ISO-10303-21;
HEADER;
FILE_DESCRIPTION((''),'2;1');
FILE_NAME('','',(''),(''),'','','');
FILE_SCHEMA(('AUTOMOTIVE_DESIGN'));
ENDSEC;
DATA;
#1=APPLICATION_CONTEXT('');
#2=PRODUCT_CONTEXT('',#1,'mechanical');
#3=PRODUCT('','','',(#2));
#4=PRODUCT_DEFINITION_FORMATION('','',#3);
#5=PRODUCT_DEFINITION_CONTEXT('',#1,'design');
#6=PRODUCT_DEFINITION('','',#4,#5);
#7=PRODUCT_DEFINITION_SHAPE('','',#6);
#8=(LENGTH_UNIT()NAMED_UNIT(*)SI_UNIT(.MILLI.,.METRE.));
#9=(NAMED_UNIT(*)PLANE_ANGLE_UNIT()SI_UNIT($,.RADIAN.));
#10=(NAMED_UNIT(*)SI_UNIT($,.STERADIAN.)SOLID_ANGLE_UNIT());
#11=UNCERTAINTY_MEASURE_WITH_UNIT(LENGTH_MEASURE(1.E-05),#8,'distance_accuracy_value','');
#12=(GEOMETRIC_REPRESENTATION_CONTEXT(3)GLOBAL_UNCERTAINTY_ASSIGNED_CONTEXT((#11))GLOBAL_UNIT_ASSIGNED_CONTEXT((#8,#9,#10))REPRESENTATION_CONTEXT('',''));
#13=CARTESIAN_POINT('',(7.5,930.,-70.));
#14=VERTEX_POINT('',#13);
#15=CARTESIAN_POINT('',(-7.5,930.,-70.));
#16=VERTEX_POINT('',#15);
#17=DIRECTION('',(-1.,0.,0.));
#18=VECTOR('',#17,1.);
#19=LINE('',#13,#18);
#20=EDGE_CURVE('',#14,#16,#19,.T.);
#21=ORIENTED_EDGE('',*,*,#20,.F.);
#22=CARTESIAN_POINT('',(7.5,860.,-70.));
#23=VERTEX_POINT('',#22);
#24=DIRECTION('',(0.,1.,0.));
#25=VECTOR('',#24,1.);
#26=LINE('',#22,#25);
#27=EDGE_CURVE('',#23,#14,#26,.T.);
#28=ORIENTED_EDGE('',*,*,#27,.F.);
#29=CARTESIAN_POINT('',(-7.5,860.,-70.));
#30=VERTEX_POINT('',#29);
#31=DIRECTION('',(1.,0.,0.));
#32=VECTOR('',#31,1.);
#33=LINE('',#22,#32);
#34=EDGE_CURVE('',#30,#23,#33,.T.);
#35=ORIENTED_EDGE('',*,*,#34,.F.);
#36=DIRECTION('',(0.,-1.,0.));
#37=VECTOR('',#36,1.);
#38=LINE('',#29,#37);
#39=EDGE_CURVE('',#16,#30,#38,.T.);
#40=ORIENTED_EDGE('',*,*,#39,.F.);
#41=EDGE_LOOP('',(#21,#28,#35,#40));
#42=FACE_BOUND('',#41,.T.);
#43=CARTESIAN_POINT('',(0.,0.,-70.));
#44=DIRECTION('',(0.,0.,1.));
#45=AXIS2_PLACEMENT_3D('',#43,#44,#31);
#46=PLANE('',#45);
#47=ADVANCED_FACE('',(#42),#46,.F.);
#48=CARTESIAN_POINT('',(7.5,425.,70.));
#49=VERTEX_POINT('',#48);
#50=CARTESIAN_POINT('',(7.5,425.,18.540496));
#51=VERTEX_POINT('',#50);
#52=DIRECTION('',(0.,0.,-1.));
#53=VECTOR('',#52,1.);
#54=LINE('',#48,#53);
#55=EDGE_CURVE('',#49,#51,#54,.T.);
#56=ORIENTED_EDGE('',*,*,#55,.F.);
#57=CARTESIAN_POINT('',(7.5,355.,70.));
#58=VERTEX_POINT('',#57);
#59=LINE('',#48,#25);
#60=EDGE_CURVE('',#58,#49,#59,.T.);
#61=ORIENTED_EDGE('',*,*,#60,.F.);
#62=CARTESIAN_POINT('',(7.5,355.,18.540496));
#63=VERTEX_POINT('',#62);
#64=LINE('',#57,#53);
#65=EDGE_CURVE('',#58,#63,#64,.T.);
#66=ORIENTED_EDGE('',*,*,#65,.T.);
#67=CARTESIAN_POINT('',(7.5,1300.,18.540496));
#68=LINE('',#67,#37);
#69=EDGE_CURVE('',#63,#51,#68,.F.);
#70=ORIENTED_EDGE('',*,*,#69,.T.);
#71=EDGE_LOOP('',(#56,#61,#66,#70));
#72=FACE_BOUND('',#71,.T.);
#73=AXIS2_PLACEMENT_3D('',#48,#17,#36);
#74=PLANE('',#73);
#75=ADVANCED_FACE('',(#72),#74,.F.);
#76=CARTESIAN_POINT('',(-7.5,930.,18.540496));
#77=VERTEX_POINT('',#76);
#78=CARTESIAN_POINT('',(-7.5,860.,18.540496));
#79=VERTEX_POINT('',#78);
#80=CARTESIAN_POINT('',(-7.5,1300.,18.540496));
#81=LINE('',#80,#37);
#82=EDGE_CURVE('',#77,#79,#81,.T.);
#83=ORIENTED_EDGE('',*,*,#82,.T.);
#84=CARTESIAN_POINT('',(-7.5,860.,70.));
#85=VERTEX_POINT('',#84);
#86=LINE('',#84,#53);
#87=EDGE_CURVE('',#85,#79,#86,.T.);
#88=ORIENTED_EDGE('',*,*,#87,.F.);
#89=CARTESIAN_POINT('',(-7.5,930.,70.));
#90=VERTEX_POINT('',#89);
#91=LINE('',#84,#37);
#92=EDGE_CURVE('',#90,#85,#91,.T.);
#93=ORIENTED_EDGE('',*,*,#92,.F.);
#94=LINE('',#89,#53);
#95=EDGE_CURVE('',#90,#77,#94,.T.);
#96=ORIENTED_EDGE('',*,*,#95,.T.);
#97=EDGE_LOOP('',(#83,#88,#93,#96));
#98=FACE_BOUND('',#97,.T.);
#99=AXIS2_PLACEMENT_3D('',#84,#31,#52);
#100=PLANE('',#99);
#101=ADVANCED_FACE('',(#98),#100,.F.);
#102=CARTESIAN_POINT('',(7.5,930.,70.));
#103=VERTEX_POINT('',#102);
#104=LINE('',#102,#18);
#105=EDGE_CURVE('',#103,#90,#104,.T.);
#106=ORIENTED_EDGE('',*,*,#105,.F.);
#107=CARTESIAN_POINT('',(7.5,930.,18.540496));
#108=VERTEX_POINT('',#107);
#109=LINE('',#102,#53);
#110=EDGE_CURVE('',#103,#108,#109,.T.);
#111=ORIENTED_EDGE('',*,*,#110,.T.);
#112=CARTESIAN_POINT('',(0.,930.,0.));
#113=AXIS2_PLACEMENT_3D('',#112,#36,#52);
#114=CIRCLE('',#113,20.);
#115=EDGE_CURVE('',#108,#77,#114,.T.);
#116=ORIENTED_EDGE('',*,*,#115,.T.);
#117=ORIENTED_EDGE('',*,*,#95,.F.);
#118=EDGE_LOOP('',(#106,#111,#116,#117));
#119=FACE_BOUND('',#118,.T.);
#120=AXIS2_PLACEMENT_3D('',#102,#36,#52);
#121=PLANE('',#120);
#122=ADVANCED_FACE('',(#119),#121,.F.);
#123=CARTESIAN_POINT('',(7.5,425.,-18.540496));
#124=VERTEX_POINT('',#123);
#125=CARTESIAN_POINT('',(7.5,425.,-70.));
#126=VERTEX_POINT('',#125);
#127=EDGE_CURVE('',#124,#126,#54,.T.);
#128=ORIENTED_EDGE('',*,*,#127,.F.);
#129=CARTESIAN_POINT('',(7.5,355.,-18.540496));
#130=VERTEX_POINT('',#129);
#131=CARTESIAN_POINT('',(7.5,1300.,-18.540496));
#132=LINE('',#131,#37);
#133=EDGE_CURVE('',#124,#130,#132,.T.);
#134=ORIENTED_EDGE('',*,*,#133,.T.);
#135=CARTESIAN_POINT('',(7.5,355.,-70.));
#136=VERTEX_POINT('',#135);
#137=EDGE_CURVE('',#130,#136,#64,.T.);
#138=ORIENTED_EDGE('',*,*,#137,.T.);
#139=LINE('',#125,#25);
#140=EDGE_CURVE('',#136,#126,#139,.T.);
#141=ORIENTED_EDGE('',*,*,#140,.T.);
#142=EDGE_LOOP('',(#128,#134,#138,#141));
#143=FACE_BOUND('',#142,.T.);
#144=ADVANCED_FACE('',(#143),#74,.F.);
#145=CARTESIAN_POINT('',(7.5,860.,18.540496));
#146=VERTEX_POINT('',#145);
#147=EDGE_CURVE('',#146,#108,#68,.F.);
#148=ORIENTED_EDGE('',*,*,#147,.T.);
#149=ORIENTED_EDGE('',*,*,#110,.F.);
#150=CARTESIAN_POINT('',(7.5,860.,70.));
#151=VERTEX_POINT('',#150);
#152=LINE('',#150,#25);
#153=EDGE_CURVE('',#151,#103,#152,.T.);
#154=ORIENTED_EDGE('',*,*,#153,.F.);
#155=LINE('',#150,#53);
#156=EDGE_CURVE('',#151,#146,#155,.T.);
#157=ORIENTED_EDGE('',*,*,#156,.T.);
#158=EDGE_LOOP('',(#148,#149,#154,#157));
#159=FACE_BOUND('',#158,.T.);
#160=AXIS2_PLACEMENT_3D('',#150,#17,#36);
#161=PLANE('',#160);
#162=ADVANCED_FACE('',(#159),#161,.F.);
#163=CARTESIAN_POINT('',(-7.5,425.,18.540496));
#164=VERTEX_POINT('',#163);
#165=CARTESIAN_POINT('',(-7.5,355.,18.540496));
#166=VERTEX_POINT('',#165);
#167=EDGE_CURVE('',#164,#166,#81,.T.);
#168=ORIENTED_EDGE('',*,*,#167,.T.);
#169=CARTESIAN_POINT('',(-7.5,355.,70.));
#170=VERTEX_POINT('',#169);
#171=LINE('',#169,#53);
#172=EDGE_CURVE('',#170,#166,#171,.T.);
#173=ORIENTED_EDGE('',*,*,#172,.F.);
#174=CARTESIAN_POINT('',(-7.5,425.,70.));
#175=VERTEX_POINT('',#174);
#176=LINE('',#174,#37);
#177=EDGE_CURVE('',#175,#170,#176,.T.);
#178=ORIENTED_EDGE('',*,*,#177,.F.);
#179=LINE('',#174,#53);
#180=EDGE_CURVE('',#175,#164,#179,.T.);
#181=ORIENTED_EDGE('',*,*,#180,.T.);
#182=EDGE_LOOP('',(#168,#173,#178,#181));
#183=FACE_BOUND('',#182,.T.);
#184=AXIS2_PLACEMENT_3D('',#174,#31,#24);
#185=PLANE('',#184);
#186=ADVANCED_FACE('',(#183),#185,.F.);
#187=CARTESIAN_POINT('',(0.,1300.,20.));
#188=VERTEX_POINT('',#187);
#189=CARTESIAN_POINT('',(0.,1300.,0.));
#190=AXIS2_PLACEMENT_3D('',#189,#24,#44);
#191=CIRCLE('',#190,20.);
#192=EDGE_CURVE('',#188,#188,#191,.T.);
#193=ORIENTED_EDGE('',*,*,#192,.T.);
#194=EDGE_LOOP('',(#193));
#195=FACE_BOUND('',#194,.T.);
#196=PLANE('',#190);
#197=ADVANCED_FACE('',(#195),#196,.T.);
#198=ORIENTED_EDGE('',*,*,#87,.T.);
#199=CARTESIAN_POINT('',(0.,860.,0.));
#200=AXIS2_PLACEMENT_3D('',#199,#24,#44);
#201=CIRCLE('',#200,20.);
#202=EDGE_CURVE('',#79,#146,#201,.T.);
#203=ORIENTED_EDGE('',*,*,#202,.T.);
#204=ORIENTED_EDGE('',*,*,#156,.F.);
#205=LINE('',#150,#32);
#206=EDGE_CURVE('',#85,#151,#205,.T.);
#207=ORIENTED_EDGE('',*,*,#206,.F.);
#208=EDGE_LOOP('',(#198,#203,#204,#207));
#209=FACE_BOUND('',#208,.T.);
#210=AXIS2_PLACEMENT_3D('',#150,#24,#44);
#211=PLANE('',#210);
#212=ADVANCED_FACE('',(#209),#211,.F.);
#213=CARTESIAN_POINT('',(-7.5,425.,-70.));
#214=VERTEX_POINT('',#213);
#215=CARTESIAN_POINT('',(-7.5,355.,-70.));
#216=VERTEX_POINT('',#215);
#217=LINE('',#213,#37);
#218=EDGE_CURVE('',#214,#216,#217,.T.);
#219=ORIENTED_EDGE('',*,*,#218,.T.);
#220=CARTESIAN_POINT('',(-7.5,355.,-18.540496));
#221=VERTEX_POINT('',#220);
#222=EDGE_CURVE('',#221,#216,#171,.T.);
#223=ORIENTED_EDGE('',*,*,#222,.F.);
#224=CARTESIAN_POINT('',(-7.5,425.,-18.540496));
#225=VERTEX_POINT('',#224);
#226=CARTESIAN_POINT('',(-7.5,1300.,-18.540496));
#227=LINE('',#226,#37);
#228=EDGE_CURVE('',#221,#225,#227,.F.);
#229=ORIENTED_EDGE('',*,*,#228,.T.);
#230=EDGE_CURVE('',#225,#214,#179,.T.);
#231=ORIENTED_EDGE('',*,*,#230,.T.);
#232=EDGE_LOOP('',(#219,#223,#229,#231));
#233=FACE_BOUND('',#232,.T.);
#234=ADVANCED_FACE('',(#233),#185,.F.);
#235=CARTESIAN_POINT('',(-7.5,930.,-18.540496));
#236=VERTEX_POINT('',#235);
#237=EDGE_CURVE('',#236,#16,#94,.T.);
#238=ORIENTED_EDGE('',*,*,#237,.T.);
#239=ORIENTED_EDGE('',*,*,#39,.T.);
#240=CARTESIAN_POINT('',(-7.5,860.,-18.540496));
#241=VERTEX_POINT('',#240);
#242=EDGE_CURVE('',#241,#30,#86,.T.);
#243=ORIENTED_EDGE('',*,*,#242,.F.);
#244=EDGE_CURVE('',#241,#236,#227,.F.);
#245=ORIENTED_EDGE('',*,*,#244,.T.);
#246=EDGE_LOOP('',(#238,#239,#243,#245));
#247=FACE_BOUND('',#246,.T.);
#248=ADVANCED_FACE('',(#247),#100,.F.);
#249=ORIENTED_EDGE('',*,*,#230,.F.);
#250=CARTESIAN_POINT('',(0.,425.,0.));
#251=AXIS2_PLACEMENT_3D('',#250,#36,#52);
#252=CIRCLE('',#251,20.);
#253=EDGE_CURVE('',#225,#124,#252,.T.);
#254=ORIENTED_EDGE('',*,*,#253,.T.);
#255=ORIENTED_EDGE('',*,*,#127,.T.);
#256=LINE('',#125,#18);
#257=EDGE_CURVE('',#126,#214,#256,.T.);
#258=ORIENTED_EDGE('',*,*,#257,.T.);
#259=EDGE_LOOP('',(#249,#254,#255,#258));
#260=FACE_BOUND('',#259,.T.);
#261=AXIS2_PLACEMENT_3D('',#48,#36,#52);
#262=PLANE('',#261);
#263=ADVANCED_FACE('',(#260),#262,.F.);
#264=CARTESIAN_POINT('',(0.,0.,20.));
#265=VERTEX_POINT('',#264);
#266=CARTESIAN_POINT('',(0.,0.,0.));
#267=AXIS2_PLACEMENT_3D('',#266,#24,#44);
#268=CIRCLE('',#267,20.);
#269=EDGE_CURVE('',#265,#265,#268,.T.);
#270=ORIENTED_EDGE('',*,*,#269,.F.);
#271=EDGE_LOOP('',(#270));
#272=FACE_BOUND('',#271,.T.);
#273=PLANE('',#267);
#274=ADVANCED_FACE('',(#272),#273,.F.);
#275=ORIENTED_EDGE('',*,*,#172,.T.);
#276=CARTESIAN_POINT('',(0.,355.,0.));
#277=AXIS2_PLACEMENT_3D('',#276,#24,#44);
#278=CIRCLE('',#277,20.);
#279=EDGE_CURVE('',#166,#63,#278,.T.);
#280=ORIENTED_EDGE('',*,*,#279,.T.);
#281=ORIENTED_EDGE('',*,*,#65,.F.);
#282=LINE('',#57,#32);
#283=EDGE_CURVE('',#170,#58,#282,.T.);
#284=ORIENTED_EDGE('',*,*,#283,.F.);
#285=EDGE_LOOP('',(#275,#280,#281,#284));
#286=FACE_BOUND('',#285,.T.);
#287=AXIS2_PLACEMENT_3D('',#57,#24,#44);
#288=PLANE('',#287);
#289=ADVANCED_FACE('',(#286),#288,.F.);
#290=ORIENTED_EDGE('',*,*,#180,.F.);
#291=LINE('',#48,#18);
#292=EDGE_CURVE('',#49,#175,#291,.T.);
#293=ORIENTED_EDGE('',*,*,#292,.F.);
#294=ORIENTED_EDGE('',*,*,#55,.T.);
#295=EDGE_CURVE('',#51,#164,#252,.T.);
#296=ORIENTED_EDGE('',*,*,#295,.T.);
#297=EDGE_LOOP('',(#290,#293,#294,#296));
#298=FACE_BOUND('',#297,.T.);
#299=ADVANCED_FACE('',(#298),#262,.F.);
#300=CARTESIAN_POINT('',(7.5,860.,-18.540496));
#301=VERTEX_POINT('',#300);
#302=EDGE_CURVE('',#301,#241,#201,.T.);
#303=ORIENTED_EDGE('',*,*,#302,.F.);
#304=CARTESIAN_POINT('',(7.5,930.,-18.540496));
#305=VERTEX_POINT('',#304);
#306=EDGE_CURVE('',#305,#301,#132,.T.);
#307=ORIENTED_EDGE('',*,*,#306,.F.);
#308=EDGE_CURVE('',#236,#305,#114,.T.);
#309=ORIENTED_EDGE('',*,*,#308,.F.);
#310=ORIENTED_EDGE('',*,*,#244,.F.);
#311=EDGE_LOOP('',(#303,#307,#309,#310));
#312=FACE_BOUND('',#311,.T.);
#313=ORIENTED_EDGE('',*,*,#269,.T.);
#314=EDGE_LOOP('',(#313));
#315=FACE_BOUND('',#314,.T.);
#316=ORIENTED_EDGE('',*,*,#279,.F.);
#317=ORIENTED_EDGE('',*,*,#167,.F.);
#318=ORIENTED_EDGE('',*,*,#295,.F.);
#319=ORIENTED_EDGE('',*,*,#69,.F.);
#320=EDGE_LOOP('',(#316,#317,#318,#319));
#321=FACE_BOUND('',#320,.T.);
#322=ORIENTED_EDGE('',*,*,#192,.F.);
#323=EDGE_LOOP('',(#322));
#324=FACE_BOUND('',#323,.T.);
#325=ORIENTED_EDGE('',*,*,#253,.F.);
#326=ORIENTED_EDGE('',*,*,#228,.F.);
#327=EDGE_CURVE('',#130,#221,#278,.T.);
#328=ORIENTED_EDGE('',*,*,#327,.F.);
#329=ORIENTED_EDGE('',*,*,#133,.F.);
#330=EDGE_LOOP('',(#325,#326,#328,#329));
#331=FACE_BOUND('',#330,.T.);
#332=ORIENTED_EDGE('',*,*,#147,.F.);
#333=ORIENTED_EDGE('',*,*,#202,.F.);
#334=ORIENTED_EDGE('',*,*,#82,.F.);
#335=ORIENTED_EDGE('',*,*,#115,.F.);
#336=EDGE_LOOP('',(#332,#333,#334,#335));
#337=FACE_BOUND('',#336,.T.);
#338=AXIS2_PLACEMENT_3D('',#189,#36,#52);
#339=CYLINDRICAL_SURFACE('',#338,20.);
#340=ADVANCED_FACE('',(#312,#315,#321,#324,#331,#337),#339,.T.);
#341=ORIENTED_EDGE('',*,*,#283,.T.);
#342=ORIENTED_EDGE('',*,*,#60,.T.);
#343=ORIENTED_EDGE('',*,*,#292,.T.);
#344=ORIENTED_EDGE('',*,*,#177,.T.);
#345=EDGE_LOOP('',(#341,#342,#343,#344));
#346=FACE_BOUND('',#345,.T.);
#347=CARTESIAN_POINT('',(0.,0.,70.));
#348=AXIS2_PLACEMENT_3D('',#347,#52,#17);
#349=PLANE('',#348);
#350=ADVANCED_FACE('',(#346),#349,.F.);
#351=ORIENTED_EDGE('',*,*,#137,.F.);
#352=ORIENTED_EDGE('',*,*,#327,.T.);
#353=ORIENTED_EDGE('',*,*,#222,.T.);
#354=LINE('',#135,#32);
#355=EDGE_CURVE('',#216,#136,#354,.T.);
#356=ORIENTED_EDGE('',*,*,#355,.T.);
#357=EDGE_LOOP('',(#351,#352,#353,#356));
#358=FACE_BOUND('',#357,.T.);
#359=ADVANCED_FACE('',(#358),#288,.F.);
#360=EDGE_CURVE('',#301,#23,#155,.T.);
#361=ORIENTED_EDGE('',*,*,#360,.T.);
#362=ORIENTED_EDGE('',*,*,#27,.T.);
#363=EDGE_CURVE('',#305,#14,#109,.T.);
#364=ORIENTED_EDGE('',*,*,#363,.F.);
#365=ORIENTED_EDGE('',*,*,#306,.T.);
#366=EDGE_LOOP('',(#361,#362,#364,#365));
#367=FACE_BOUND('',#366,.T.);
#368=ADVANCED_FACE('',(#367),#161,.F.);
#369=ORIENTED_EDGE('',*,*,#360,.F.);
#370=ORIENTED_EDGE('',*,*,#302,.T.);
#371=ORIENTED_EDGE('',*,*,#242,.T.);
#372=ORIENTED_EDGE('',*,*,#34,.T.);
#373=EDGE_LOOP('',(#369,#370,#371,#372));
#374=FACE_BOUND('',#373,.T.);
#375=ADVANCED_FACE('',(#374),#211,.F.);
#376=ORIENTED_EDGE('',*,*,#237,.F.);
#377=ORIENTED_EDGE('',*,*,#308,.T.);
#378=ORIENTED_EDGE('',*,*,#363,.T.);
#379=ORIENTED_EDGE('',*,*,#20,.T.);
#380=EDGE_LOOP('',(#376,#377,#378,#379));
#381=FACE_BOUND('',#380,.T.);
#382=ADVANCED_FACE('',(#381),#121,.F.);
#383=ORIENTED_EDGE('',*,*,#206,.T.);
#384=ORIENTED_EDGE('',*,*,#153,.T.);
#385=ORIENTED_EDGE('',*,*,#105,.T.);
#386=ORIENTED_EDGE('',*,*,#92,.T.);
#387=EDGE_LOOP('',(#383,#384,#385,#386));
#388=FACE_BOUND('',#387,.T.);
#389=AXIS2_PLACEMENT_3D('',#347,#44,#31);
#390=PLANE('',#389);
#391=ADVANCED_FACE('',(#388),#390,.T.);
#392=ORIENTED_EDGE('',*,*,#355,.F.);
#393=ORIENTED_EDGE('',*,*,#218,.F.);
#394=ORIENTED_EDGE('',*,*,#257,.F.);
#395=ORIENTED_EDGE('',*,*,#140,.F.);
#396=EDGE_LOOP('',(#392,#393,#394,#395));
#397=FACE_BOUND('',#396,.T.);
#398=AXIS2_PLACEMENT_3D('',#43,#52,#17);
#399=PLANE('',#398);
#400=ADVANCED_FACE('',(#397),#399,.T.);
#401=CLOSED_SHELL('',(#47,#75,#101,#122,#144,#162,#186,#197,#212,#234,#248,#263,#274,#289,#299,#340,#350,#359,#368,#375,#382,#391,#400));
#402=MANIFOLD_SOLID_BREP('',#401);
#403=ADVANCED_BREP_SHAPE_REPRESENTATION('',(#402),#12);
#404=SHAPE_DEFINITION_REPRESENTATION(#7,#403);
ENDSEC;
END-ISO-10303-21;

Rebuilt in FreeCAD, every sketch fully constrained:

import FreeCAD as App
import Part
import Sketcher
from FreeCAD import Vector
Q = App.Units.Quantity


def add_polygon(sketch, points):
    """Adds a closed chain of lines whose ends are joined by coincident constraints."""
    first, n = sketch.GeometryCount, len(points)
    for a, b in zip(points, points[1:] + points[:1]):
        sketch.addGeometry(Part.LineSegment(App.Vector(*a, 0), App.Vector(*b, 0)), False)
    for i in range(n):
        sketch.addConstraint(Sketcher.Constraint("Coincident", first + i, 2, first + (i + 1) % n, 1))

doc = App.newDocument("Part")
params = doc.addObject("Spreadsheet::Sheet", "Params")
for row, (alias, value) in enumerate([
    ("sketch1_diameter", "40 mm"),
    ("pad1_length", "1300 mm"),
    ("sketch2_width", "15 mm"),
    ("sketch2_height", "70 mm"),
    ("pad2_length", "140 mm"),
    ("sketch3_width", "15 mm"),
    ("sketch3_height", "70 mm"),
    ("pad3_length", "140 mm"),
], start=1):
    params.set(f"A{row}", alias)
    params.set(f"B{row}", "=" + value)
    params.setAlias(f"B{row}", alias)

body = doc.addObject("PartDesign::Body", "Body")

sketch1 = doc.addObject("Sketcher::SketchObject", "Sketch")
body.addObject(sketch1)
sketch1.AttachmentSupport = (doc.XZ_Plane, [""])
sketch1.MapMode = "FlatFace"
sketch1.addGeometry(Part.Circle(Vector(0, 0, 0), Vector(0, 0, 1), 20), False)
sketch1.addConstraint(Sketcher.Constraint("Coincident", 0, 3, -1, 1))
sketch1.addConstraint(Sketcher.Constraint("Diameter", 0, Q("40 mm")))
sketch1.setExpression("Constraints[1]", "Params.sketch1_diameter")
pad1 = doc.addObject("PartDesign::Pad", "Pad")
body.addObject(pad1)
pad1.Profile = sketch1
pad1.setExpression("Length", "Params.pad1_length")
pad1.Reversed = True

sketch2 = doc.addObject("Sketcher::SketchObject", "Sketch001")
body.addObject(sketch2)
sketch2.AttachmentSupport = (doc.XY_Plane, [""])
sketch2.MapMode = "FlatFace"
add_polygon(sketch2, [(-7.5, 425), (-7.5, 355), (7.5, 355), (7.5, 425)])
sketch2.addConstraint(Sketcher.Constraint("Vertical", 0))
sketch2.addConstraint(Sketcher.Constraint("Horizontal", 1))
sketch2.addConstraint(Sketcher.Constraint("Vertical", 2))
sketch2.addConstraint(Sketcher.Constraint("Horizontal", 3))
sketch2.addConstraint(Sketcher.Constraint("DistanceX", 1, 1, 1, 2, Q("15 mm")))
sketch2.addConstraint(Sketcher.Constraint("DistanceY", 0, 2, 0, 1, Q("70 mm")))
sketch2.addConstraint(Sketcher.Constraint("DistanceY", -1, 1, 0, 2, Q("355 mm")))
sketch2.addConstraint(Sketcher.Constraint("DistanceX", 0, 2, -1, 1, Q("7.5 mm")))
sketch2.setExpression("Constraints[8]", "Params.sketch2_width")
sketch2.setExpression("Constraints[9]", "Params.sketch2_height")
pad2 = doc.addObject("PartDesign::Pad", "Pad001")
body.addObject(pad2)
pad2.Profile = sketch2
pad2.setExpression("Length", "Params.pad2_length")
pad2.Midplane = True

sketch3 = doc.addObject("Sketcher::SketchObject", "Sketch002")
body.addObject(sketch3)
sketch3.AttachmentSupport = (doc.XY_Plane, [""])
sketch3.MapMode = "FlatFace"
add_polygon(sketch3, [(-7.5, 930), (-7.5, 860), (7.5, 860), (7.5, 930)])
sketch3.addConstraint(Sketcher.Constraint("Vertical", 0))
sketch3.addConstraint(Sketcher.Constraint("Horizontal", 1))
sketch3.addConstraint(Sketcher.Constraint("Vertical", 2))
sketch3.addConstraint(Sketcher.Constraint("Horizontal", 3))
sketch3.addConstraint(Sketcher.Constraint("DistanceX", 1, 1, 1, 2, Q("15 mm")))
sketch3.addConstraint(Sketcher.Constraint("DistanceY", 0, 2, 0, 1, Q("70 mm")))
sketch3.addConstraint(Sketcher.Constraint("DistanceY", -1, 1, 0, 2, Q("860 mm")))
sketch3.addConstraint(Sketcher.Constraint("DistanceX", 0, 2, -1, 1, Q("7.5 mm")))
sketch3.setExpression("Constraints[8]", "Params.sketch3_width")
sketch3.setExpression("Constraints[9]", "Params.sketch3_height")
pad3 = doc.addObject("PartDesign::Pad", "Pad002")
body.addObject(pad3)
pad3.Profile = sketch3
pad3.setExpression("Length", "Params.pad3_length")
pad3.Midplane = True

doc.recompute()
